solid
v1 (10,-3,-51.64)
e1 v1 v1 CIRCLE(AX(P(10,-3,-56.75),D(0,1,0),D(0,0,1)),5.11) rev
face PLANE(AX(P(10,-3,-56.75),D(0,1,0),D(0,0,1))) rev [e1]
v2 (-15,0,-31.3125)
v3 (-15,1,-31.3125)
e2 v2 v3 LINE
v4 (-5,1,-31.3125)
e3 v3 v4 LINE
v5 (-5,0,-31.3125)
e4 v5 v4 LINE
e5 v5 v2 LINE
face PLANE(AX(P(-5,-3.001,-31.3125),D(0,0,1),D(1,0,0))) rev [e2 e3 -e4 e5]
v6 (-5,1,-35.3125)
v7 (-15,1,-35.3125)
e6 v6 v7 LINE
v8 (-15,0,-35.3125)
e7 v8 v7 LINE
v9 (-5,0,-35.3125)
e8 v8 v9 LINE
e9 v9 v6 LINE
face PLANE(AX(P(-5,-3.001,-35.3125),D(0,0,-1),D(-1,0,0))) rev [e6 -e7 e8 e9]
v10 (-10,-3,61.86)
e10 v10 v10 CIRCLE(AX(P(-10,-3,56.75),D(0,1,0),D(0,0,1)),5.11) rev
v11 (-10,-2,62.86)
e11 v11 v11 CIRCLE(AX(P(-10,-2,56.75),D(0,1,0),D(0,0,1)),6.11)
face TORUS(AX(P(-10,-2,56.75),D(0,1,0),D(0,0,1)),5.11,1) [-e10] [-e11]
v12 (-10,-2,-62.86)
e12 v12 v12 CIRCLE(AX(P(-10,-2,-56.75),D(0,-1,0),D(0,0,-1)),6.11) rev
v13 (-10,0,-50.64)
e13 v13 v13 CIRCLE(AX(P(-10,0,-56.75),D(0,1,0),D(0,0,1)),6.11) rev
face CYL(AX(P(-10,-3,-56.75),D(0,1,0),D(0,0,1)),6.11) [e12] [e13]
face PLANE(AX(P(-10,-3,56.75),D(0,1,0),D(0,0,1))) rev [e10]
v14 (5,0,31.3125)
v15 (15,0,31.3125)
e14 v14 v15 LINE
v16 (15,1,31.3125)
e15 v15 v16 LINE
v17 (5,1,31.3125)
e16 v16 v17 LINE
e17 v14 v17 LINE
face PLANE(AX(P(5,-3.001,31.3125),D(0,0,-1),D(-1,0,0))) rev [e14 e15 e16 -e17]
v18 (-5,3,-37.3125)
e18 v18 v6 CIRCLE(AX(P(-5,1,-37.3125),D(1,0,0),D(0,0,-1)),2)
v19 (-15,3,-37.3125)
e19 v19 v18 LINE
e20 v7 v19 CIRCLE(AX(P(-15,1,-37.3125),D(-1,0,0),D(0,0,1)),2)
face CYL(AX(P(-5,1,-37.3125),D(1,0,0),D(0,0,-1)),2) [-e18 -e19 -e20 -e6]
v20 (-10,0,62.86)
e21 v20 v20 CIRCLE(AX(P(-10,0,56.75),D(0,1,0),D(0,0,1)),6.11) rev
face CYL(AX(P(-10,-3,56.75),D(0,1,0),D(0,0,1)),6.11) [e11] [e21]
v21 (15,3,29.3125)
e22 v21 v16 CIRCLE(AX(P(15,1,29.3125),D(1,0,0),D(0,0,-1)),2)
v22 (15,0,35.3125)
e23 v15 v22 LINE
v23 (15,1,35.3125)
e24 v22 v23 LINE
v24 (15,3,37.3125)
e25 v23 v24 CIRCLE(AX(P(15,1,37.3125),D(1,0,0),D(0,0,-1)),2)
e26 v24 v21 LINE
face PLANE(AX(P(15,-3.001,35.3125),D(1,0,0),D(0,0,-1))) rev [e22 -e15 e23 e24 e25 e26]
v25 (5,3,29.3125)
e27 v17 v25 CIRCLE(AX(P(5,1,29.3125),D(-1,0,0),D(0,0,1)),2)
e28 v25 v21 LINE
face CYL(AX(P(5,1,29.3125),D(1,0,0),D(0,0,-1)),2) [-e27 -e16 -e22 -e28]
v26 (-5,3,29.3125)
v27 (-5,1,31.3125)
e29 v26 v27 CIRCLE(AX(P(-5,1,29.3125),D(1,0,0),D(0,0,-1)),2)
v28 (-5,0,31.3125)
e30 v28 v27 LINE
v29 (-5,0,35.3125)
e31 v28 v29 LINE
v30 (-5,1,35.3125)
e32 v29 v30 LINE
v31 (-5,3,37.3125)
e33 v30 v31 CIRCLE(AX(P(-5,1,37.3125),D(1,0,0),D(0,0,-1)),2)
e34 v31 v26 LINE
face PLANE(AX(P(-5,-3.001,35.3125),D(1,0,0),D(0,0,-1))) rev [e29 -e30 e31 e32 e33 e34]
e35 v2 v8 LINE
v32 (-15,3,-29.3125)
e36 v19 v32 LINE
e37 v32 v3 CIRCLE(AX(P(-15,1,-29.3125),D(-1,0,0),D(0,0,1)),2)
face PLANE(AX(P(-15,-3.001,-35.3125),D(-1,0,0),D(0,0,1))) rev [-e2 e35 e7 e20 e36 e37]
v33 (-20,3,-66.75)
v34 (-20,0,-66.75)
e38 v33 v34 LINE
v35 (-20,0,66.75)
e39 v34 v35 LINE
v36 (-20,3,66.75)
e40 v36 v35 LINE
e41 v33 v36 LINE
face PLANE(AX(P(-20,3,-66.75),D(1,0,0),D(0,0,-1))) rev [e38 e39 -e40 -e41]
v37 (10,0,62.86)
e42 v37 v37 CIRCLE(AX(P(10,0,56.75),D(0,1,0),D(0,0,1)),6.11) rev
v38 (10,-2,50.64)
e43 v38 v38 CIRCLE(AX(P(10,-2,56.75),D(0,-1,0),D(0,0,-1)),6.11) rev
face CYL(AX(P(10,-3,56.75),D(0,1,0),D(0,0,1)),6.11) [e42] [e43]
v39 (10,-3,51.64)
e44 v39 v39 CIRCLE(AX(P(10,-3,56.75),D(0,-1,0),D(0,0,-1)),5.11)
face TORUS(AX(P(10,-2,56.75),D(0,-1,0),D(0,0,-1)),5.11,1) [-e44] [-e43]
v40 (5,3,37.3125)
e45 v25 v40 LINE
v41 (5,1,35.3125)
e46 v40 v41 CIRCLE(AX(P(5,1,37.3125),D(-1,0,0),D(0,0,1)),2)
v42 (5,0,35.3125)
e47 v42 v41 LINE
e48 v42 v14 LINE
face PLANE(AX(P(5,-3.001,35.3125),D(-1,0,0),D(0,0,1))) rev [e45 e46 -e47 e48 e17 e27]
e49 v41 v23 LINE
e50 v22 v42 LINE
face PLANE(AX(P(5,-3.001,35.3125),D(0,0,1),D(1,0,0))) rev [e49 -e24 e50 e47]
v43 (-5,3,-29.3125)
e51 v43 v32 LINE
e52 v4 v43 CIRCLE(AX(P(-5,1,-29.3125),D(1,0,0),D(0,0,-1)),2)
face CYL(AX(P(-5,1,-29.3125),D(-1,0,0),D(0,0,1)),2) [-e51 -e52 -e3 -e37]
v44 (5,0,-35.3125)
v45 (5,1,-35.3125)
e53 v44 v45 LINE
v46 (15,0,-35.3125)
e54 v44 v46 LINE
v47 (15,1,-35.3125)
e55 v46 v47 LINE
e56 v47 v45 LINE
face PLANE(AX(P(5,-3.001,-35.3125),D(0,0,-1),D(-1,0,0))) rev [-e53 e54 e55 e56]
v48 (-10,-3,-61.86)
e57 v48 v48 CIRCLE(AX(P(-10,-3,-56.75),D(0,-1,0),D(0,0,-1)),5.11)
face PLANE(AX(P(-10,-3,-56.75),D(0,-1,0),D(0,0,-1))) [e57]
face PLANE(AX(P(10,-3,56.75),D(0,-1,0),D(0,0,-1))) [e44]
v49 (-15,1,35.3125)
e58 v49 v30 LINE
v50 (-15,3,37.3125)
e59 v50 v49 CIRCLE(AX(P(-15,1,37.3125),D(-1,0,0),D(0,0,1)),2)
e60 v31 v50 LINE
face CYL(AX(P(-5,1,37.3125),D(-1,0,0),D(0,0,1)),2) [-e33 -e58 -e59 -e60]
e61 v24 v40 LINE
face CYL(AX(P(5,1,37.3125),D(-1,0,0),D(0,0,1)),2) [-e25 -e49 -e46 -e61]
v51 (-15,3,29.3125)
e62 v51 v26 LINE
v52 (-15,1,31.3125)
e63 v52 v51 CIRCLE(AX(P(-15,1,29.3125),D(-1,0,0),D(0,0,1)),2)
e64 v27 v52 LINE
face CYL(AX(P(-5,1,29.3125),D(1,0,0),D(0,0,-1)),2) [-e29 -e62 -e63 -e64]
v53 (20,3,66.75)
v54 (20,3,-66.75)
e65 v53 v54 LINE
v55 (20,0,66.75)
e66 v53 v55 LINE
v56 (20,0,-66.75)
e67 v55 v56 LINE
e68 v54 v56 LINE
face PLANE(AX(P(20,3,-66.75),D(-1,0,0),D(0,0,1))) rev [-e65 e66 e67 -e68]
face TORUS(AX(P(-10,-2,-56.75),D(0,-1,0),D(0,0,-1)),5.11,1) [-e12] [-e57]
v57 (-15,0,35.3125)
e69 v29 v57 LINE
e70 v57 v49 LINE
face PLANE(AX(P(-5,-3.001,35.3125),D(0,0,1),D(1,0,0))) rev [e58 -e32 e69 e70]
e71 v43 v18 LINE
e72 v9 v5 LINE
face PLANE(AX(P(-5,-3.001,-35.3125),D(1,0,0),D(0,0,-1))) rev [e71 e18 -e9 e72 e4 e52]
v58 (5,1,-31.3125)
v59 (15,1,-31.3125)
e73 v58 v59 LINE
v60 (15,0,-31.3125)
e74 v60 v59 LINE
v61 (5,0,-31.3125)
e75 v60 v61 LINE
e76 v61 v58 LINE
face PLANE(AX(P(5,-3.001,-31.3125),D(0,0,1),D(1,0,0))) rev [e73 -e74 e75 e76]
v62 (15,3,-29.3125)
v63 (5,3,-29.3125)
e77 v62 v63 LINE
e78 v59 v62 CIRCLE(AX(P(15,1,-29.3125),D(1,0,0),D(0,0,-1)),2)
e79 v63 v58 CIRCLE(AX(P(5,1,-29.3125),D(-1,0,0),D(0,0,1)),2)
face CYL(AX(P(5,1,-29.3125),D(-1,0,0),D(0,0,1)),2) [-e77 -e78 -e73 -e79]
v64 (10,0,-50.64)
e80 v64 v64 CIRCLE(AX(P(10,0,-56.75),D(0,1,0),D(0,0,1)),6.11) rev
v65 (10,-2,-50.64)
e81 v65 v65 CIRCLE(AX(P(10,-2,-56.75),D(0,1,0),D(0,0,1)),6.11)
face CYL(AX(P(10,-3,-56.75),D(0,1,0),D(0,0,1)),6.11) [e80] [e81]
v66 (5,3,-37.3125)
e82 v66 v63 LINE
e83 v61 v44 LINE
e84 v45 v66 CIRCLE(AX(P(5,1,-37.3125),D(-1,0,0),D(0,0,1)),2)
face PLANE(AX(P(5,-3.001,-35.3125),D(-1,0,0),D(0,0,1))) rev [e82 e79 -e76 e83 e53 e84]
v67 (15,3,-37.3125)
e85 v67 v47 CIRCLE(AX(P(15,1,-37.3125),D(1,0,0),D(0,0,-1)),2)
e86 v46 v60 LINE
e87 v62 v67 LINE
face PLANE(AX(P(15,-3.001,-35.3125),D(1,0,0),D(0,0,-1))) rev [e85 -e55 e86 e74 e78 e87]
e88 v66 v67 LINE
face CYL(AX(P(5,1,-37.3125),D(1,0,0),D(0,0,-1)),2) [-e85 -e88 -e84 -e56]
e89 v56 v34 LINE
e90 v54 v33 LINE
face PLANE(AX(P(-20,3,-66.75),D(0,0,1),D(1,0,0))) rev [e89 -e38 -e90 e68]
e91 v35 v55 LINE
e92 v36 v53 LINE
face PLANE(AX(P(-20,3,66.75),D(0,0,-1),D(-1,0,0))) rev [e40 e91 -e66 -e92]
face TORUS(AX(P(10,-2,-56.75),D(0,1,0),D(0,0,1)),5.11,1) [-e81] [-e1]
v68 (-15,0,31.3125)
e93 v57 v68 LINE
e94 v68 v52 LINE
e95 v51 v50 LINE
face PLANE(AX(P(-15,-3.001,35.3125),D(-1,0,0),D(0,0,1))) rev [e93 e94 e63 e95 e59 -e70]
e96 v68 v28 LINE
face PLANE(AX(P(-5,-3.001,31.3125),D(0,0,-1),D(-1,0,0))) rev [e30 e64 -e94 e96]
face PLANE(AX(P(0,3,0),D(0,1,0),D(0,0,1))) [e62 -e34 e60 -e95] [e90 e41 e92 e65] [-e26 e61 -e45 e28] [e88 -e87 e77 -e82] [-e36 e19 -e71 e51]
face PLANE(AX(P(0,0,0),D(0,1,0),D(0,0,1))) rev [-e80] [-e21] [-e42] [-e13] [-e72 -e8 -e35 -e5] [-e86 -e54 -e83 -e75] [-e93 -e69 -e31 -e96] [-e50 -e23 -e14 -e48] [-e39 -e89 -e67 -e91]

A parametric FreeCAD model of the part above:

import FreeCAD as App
import Part
import Sketcher
from FreeCAD import Vector
Q = App.Units.Quantity


def edges_at(feature, points):
    """Names of the edges that pass closest to the given points."""
    edges = feature.Shape.Edges
    near = lambda p: min(range(len(edges)), key=lambda i: edges[i].distToShape(Part.Vertex(*p))[0])
    return sorted({f"Edge{near(p) + 1}" for p in points})


def add_polygon(sketch, points):
    """Adds a closed chain of lines whose ends are joined by coincident constraints."""
    first, n = sketch.GeometryCount, len(points)
    for a, b in zip(points, points[1:] + points[:1]):
        sketch.addGeometry(Part.LineSegment(App.Vector(*a, 0), App.Vector(*b, 0)), False)
    for i in range(n):
        sketch.addConstraint(Sketcher.Constraint("Coincident", first + i, 2, first + (i + 1) % n, 1))

doc = App.newDocument("Part")
body = doc.addObject("PartDesign::Body", "Body")

sketch1 = body.newObject("Sketcher::SketchObject", "Sketch")
sketch1.AttachmentSupport = (doc.getObject("XZ_Plane"), [""])
sketch1.MapMode = "FlatFace"
add_polygon(sketch1, [(-20, -67), (-20, 67), (20, 67), (20, -67)])
sketch1.addConstraint([
    Sketcher.Constraint("Vertical", 0),
    Sketcher.Constraint("Horizontal", 1),
    Sketcher.Constraint("Vertical", 2),
    Sketcher.Constraint("Horizontal", 3),
    Sketcher.Constraint("Symmetric", 0, 2, 2, 2, -1, 1),
    Sketcher.Constraint("DistanceX", 1, 1, 1, 2, Q("40 mm")),
    Sketcher.Constraint("DistanceY", 0, 1, 0, 2, Q("133.5 mm")),
])
pad1 = body.newObject("PartDesign::Pad", "Pad")
pad1.Profile = sketch1
pad1.Length = 3
pad1.Reversed = True

sketch2 = body.newObject("Sketcher::SketchObject", "Sketch001")
sketch2.AttachmentSupport = (doc.getObject("XZ_Plane"), [""])
sketch2.MapMode = "FlatFace"
sketch2.addGeometry([
    Part.Circle(Vector(10, 57, 0), Vector(0, 0, 1), 6),
    Part.Circle(Vector(-10, 57, 0), Vector(0, 0, 1), 6),
    Part.Circle(Vector(-10, -57, 0), Vector(0, 0, 1), 6),
    Part.Circle(Vector(10, -57, 0), Vector(0, 0, 1), 6),
], False)
sketch2.addConstraint([
    Sketcher.Constraint("Equal", 0, 1),
    Sketcher.Constraint("Equal", 1, 2),
    Sketcher.Constraint("Equal", 2, 3),
    Sketcher.Constraint("Symmetric", 0, 3, 2, 3, -1, 1),
    Sketcher.Constraint("Symmetric", 1, 3, 3, 3, -1, 1),
    Sketcher.Constraint("Symmetric", 0, 3, 1, 3, -2),
    Sketcher.Constraint("Diameter", 0, Q("12.22 mm")),
    Sketcher.Constraint("DistanceX", -1, 1, 0, 3, Q("10 mm")),
    Sketcher.Constraint("DistanceY", 2, 3, 1, 3, Q("113.5 mm")),
])
pad2 = body.newObject("PartDesign::Pad", "Pad001")
pad2.Profile = sketch2
pad2.Length = 3

sketch3 = body.newObject("Sketcher::SketchObject", "Sketch002")
sketch3.AttachmentSupport = (doc.getObject("XZ_Plane"), [""])
sketch3.MapMode = "FlatFace"
sketch3.AttachmentOffset = App.Placement(Vector(0, 0, -3), App.Rotation())
add_polygon(sketch3, [(5, -35.3), (5, -31.3), (15, -31.3), (15, -35.3)])
sketch3.addConstraint([
    Sketcher.Constraint("Vertical", 0),
    Sketcher.Constraint("Horizontal", 1),
    Sketcher.Constraint("Vertical", 2),
    Sketcher.Constraint("Horizontal", 3),
    Sketcher.Constraint("DistanceX", 1, 1, 1, 2, Q("10 mm")),
    Sketcher.Constraint("DistanceY", 0, 1, 0, 2, Q("4 mm")),
    Sketcher.Constraint("DistanceX", -1, 1, 0, 2, Q("5 mm")),
    Sketcher.Constraint("DistanceY", 0, 2, -1, 1, Q("31.3125 mm")),
])
pocket1 = body.newObject("PartDesign::Pocket", "Pocket")
pocket1.Profile = sketch3
pocket1.Type = "UpToFirst"
pocket1.Reversed = True

sketch4 = body.newObject("Sketcher::SketchObject", "Sketch003")
sketch4.AttachmentSupport = (doc.getObject("XZ_Plane"), [""])
sketch4.MapMode = "FlatFace"
sketch4.AttachmentOffset = App.Placement(Vector(0, 0, -3), App.Rotation())
add_polygon(sketch4, [(-15, -35.3), (-15, -31.3), (-5, -31.3), (-5, -35.3)])
sketch4.addConstraint([
    Sketcher.Constraint("Vertical", 0),
    Sketcher.Constraint("Horizontal", 1),
    Sketcher.Constraint("Vertical", 2),
    Sketcher.Constraint("Horizontal", 3),
    Sketcher.Constraint("DistanceX", 1, 1, 1, 2, Q("10 mm")),
    Sketcher.Constraint("DistanceY", 0, 1, 0, 2, Q("4 mm")),
    Sketcher.Constraint("DistanceX", 0, 2, -1, 1, Q("15 mm")),
    Sketcher.Constraint("DistanceY", 0, 2, -1, 1, Q("31.3125 mm")),
])
pocket2 = body.newObject("PartDesign::Pocket", "Pocket001")
pocket2.Profile = sketch4
pocket2.Type = "UpToFirst"
pocket2.Reversed = True

sketch5 = body.newObject("Sketcher::SketchObject", "Sketch004")
sketch5.AttachmentSupport = (doc.getObject("XZ_Plane"), [""])
sketch5.MapMode = "FlatFace"
sketch5.AttachmentOffset = App.Placement(Vector(0, 0, -3), App.Rotation())
add_polygon(sketch5, [(-15, 31.3), (-15, 35.3), (-5, 35.3), (-5, 31.3)])
sketch5.addConstraint([
    Sketcher.Constraint("Vertical", 0),
    Sketcher.Constraint("Horizontal", 1),
    Sketcher.Constraint("Vertical", 2),
    Sketcher.Constraint("Horizontal", 3),
    Sketcher.Constraint("DistanceX", 1, 1, 1, 2, Q("10 mm")),
    Sketcher.Constraint("DistanceY", 0, 1, 0, 2, Q("4 mm")),
    Sketcher.Constraint("DistanceX", 0, 2, -1, 1, Q("15 mm")),
    Sketcher.Constraint("DistanceY", -1, 1, 0, 2, Q("35.3125 mm")),
])
pocket3 = body.newObject("PartDesign::Pocket", "Pocket002")
pocket3.Profile = sketch5
pocket3.Type = "UpToFirst"
pocket3.Reversed = True

sketch6 = body.newObject("Sketcher::SketchObject", "Sketch005")
sketch6.AttachmentSupport = (doc.getObject("XZ_Plane"), [""])
sketch6.MapMode = "FlatFace"
sketch6.AttachmentOffset = App.Placement(Vector(0, 0, -3), App.Rotation())
add_polygon(sketch6, [(5, 31.3), (5, 35.3), (15, 35.3), (15, 31.3)])
sketch6.addConstraint([
    Sketcher.Constraint("Vertical", 0),
    Sketcher.Constraint("Horizontal", 1),
    Sketcher.Constraint("Vertical", 2),
    Sketcher.Constraint("Horizontal", 3),
    Sketcher.Constraint("DistanceX", 1, 1, 1, 2, Q("10 mm")),
    Sketcher.Constraint("DistanceY", 0, 1, 0, 2, Q("4 mm")),
    Sketcher.Constraint("DistanceX", -1, 1, 0, 2, Q("5 mm")),
    Sketcher.Constraint("DistanceY", -1, 1, 0, 2, Q("35.3125 mm")),
])
pocket4 = body.newObject("PartDesign::Pocket", "Pocket003")
pocket4.Profile = sketch6
pocket4.Type = "UpToFirst"
pocket4.Reversed = True
doc.recompute()

fillet = body.newObject("PartDesign::Fillet", "Fillet")
fillet.Base = (pocket4, edges_at(pocket4, [
    (10, -3, -62.86),
    (-10, -3, -62.86),
    (-10, -3, 50.64),
    (10, -3, 50.64),
]))
fillet.Radius = 1
doc.recompute()

fillet2 = body.newObject("PartDesign::Fillet", "Fillet001")
fillet2.Base = (fillet, edges_at(fillet, [
    (10, 3, 35.312),
    (10, 3, 31.312),
    (-10, 3, 35.312),
    (-10, 3, 31.312),
    (-10, 3, -35.312),
    (-10, 3, -31.312),
    (10, 3, -35.312),
    (10, 3, -31.312),
]))
fillet2.Radius = 2

doc.recompute()
